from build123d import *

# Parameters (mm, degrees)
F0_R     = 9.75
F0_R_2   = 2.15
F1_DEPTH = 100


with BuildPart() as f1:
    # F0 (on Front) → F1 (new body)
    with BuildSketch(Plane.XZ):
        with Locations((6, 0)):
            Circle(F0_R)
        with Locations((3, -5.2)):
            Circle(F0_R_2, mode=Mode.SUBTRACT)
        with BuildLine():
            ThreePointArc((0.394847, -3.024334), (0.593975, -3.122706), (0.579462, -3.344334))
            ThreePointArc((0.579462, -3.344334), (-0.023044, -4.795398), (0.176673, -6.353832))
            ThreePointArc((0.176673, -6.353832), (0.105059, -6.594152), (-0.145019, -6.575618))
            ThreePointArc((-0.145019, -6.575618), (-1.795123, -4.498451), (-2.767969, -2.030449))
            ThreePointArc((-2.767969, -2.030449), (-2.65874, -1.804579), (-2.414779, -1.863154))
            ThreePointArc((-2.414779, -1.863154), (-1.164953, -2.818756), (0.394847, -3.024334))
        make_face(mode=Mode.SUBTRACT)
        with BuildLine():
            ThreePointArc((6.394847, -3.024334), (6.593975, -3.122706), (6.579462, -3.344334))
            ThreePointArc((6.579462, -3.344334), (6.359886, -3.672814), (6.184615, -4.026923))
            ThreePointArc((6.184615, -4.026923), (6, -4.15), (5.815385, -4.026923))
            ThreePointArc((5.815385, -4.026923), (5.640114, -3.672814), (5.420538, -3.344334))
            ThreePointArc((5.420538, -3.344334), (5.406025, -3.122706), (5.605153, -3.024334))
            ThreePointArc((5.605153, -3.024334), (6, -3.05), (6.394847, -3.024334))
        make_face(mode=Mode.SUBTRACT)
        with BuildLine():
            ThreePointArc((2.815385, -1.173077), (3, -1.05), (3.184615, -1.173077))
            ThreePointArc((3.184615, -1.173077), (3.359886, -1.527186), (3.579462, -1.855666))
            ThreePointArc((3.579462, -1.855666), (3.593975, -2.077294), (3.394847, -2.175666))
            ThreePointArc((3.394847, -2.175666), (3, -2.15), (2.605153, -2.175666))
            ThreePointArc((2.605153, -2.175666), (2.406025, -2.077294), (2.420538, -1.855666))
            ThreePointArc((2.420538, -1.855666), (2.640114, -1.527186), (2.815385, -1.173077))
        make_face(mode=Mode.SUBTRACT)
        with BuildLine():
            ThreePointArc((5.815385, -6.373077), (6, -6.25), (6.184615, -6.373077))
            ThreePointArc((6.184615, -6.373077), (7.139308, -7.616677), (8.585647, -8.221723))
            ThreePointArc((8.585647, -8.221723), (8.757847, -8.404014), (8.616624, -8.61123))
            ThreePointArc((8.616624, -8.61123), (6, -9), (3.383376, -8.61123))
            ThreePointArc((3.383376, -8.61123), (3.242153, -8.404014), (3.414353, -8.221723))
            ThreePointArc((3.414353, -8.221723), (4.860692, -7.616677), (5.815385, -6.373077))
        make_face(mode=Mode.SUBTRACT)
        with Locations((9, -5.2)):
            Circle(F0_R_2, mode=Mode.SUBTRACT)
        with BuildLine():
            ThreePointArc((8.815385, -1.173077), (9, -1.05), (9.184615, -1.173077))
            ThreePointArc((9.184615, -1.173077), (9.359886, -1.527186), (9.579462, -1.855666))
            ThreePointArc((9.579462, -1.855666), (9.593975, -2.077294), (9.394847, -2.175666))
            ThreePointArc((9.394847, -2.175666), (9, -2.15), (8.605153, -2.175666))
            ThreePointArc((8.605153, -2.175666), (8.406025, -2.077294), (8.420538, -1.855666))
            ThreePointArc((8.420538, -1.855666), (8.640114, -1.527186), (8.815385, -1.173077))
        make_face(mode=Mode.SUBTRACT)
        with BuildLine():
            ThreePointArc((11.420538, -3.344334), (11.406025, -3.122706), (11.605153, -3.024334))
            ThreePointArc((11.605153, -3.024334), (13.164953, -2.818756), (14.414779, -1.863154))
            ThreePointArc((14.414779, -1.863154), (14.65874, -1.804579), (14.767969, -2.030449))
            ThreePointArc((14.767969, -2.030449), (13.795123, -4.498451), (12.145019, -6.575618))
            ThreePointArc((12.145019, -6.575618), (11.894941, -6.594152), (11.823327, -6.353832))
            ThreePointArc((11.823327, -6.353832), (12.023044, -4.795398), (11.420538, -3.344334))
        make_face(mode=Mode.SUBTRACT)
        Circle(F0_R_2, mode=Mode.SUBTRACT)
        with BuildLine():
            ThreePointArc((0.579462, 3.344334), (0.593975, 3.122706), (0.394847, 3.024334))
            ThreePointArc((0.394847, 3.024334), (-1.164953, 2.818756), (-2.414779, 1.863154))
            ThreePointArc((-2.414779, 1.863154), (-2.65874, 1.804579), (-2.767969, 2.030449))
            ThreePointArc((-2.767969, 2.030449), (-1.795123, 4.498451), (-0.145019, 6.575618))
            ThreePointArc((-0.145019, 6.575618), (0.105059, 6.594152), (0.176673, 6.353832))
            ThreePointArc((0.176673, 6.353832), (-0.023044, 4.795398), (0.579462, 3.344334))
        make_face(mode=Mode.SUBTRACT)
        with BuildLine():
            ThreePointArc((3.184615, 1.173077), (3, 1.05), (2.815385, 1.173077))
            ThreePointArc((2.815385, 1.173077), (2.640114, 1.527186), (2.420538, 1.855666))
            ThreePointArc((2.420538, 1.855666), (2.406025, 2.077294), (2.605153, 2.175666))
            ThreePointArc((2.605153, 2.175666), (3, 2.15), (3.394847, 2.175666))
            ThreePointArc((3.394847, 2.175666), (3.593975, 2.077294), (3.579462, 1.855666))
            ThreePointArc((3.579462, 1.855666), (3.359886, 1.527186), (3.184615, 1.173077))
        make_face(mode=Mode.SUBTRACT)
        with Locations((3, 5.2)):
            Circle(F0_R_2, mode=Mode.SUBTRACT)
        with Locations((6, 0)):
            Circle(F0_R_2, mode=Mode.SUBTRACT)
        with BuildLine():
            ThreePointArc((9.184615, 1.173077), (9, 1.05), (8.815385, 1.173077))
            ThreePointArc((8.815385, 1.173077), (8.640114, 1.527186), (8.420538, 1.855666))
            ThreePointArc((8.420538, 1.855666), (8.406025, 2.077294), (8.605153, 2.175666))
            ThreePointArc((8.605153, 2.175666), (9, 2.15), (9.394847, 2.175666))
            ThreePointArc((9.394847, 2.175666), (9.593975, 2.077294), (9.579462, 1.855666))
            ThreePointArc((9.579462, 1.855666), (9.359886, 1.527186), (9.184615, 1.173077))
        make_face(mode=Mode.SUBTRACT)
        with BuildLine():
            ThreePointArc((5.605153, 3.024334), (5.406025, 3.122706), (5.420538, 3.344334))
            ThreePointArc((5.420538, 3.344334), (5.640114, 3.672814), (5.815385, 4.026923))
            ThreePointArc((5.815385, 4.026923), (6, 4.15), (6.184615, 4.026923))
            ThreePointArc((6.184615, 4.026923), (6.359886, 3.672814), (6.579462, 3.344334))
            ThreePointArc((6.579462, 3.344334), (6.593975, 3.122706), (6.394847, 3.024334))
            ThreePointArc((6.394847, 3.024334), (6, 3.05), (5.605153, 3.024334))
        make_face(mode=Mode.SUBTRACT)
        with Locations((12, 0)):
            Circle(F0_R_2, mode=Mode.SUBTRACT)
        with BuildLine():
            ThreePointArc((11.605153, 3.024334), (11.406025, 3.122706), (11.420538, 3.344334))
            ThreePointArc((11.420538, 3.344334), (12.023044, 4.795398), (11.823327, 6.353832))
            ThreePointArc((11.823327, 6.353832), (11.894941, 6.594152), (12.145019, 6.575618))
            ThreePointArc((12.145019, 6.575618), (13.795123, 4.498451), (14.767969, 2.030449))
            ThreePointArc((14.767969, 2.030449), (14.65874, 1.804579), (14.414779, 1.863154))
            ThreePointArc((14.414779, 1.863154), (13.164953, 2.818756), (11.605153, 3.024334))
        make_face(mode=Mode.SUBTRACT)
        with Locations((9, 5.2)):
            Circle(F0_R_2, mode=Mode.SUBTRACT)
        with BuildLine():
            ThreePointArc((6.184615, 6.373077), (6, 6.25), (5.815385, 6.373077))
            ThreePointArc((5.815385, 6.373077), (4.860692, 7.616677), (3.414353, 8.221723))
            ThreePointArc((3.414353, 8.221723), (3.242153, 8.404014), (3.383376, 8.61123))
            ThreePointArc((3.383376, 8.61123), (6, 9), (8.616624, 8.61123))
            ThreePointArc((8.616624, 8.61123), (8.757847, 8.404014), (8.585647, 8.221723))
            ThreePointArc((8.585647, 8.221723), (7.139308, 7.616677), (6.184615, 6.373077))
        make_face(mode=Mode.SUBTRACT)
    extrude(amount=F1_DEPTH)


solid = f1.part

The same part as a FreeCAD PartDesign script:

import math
import FreeCAD as App
import Part
import Sketcher
from FreeCAD import Vector
Q = App.Units.Quantity

doc = App.newDocument("Part")
body = doc.addObject("PartDesign::Body", "Body")

# Sketch on XZ plane
sketch1 = doc.addObject("Sketcher::SketchObject", "Sketch")
body.addObject(sketch1)
sketch1.AttachmentSupport = (doc.XZ_Plane, [""])
sketch1.MapMode = "FlatFace"
sketch1.addGeometry([
    Part.Circle(Vector(6, 0, 0), Vector(0, 0, 1), 9.75),  # 0
    Part.Circle(Vector(3, -5.2, 0), Vector(0, 0, 1), 2.15),  # 1
    Part.ArcOfCircle(Part.Circle(Vector(0, -0.000001, 0), Vector(0, 0, 1), 3.05), math.radians(-142.347558), math.radians(-82.561719)),  # 2
    Part.ArcOfCircle(Part.Circle(Vector(0.420738, -3.222651, 0), Vector(0, 0, 1), 0.2), math.radians(-37.474985), math.radians(97.438161)),  # 3
    Part.ArcOfCircle(Part.Circle(Vector(3.000005, -5.200001, 0), Vector(0, 0, 1), 3.050005), math.radians(142.525051), math.radians(202.228703)),  # 4
    Part.ArcOfCircle(Part.Circle(Vector(-0.008463, -6.429493, 0), Vector(0, 0, 1), 0.2), math.radians(-133.061075), math.radians(22.228619)),  # 5
    Part.ArcOfCircle(Part.Circle(Vector(6.000004, 0.000001, 0), Vector(0, 0, 1), 9.000004), math.radians(-166.961514), math.radians(-133.061265)),  # 6
    Part.ArcOfCircle(Part.Circle(Vector(-2.573125, -1.985328, 0), Vector(0, 0, 1), 0.2), math.radians(37.652356), math.radians(193.038532)),  # 7
    Part.Circle(Vector(0, 0, 0), Vector(0, 0, 1), 2.15),  # 8
    Part.ArcOfCircle(Part.Circle(Vector(-0.00004, 0.000025, 0), Vector(0, 0, 1), 3.050047), math.radians(-37.474897), math.radians(-22.62)),  # 9
    Part.ArcOfCircle(Part.Circle(Vector(3, -1.249999, 0), Vector(0, 0, 1), 0.199999), math.radians(22.619722), math.radians(157.380278)),  # 10
    Part.ArcOfCircle(Part.Circle(Vector(6.00004, 0.000025, 0), Vector(0, 0, 1), 3.050047), math.radians(-157.38), math.radians(-142.525103)),  # 11
    Part.ArcOfCircle(Part.Circle(Vector(3.420738, -1.977349, 0), Vector(0, 0, 1), 0.2), math.radians(-97.438161), math.radians(37.474985)),  # 12
    Part.ArcOfCircle(Part.Circle(Vector(3, -5.200006, 0), Vector(0, 0, 1), 3.050006), math.radians(82.561739), math.radians(97.438261)),  # 13
    Part.ArcOfCircle(Part.Circle(Vector(2.579262, -1.977349, 0), Vector(0, 0, 1), 0.2), math.radians(142.525015), math.radians(277.438161)),  # 14
    Part.ArcOfCircle(Part.Circle(Vector(3.000002, -5.200002, 0), Vector(0, 0, 1), 3.049998), math.radians(-82.192061), math.radians(-22.61985)),  # 15
    Part.ArcOfCircle(Part.Circle(Vector(6, -6.449999, 0), Vector(0, 0, 1), 0.199999), math.radians(22.619722), math.radians(157.380278)),  # 16
    Part.ArcOfCircle(Part.Circle(Vector(8.999998, -5.200002, 0), Vector(0, 0, 1), 3.049998), math.radians(-157.38015), math.radians(-97.807939)),  # 17
    Part.ArcOfCircle(Part.Circle(Vector(8.558476, -8.419869, 0), Vector(0, 0, 1), 0.2), math.radians(-73.097789), math.radians(82.19197)),  # 18
    Part.ArcOfCircle(Part.Circle(Vector(6, 0.000004, 0), Vector(0, 0, 1), 9.000004), math.radians(-106.902016), math.radians(-73.097984)),  # 19
    Part.ArcOfCircle(Part.Circle(Vector(3.441524, -8.419869, 0), Vector(0, 0, 1), 0.2), math.radians(97.80803), math.radians(253.097789)),  # 20
    Part.Circle(Vector(9, -5.2, 0), Vector(0, 0, 1), 2.15),  # 21
    Part.ArcOfCircle(Part.Circle(Vector(6, 0.000006, 0), Vector(0, 0, 1), 3.050006), math.radians(-97.438261), math.radians(-82.561739)),  # 22
    Part.ArcOfCircle(Part.Circle(Vector(6.420738, -3.222651, 0), Vector(0, 0, 1), 0.2), math.radians(-37.474985), math.radians(97.438161)),  # 23
    Part.ArcOfCircle(Part.Circle(Vector(9.00004, -5.200025, 0), Vector(0, 0, 1), 3.050047), math.radians(142.525103), math.radians(157.38)),  # 24
    Part.ArcOfCircle(Part.Circle(Vector(6, -3.950001, 0), Vector(0, 0, 1), 0.199999), math.radians(-157.380278), math.radians(-22.619722)),  # 25
    Part.ArcOfCircle(Part.Circle(Vector(2.99996, -5.200025, 0), Vector(0, 0, 1), 3.050047), math.radians(22.62), math.radians(37.474897)),  # 26
    Part.ArcOfCircle(Part.Circle(Vector(5.579262, -3.222651, 0), Vector(0, 0, 1), 0.2), math.radians(82.561839), math.radians(217.474985)),  # 27
    Part.Circle(Vector(6, 0, 0), Vector(0, 0, 1), 2.15),  # 28
    Part.ArcOfCircle(Part.Circle(Vector(5.99996, 0.000025, 0), Vector(0, 0, 1), 3.050047), math.radians(-37.474897), math.radians(-22.62)),  # 29
    Part.ArcOfCircle(Part.Circle(Vector(9, -1.249999, 0), Vector(0, 0, 1), 0.199999), math.radians(22.619722), math.radians(157.380278)),  # 30
    Part.ArcOfCircle(Part.Circle(Vector(12.00004, 0.000025, 0), Vector(0, 0, 1), 3.050047), math.radians(-157.38), math.radians(-142.525103)),  # 31
    Part.ArcOfCircle(Part.Circle(Vector(9.420738, -1.977349, 0), Vector(0, 0, 1), 0.2), math.radians(-97.438161), math.radians(37.474985)),  # 32
    Part.ArcOfCircle(Part.Circle(Vector(9, -5.200006, 0), Vector(0, 0, 1), 3.050006), math.radians(82.561739), math.radians(97.438261)),  # 33
    Part.ArcOfCircle(Part.Circle(Vector(8.579262, -1.977349, 0), Vector(0, 0, 1), 0.2), math.radians(142.525015), math.radians(277.438161)),  # 34
    Part.ArcOfCircle(Part.Circle(Vector(8.999995, -5.200001, 0), Vector(0, 0, 1), 3.050005), math.radians(-22.228703), math.radians(37.474949)),  # 35
    Part.ArcOfCircle(Part.Circle(Vector(11.579262, -3.222651, 0), Vector(0, 0, 1), 0.2), math.radians(82.561839), math.radians(217.474985)),  # 36
    Part.ArcOfCircle(Part.Circle(Vector(12, -0.000001, 0), Vector(0, 0, 1), 3.05), math.radians(-97.438281), math.radians(-37.652442)),  # 37
    Part.ArcOfCircle(Part.Circle(Vector(14.573125, -1.985328, 0), Vector(0, 0, 1), 0.2), math.radians(-13.038532), math.radians(142.347644)),  # 38
    Part.ArcOfCircle(Part.Circle(Vector(5.999996, 0.000001, 0), Vector(0, 0, 1), 9.000004), math.radians(-46.938735), math.radians(-13.038486)),  # 39
    Part.ArcOfCircle(Part.Circle(Vector(12.008463, -6.429493, 0), Vector(0, 0, 1), 0.2), math.radians(157.771381), math.radians(313.061075)),  # 40
    Part.Circle(Vector(12, 0, 0), Vector(0, 0, 1), 2.15),  # 41
    Part.ArcOfCircle(Part.Circle(Vector(3.000005, 5.200001, 0), Vector(0, 0, 1), 3.050005), math.radians(157.771297), math.radians(217.474949)),  # 42
    Part.ArcOfCircle(Part.Circle(Vector(0.420738, 3.222651, 0), Vector(0, 0, 1), 0.2), math.radians(-97.438161), math.radians(37.474985)),  # 43
    Part.ArcOfCircle(Part.Circle(Vector(0, 0.000001, 0), Vector(0, 0, 1), 3.05), math.radians(82.561719), math.radians(142.347558)),  # 44
    Part.ArcOfCircle(Part.Circle(Vector(-2.573125, 1.985328, 0), Vector(0, 0, 1), 0.2), math.radians(166.961468), math.radians(322.347644)),  # 45
    Part.ArcOfCircle(Part.Circle(Vector(6.000004, -0.000001, 0), Vector(0, 0, 1), 9.000004), math.radians(133.061265), math.radians(166.961514)),  # 46
    Part.ArcOfCircle(Part.Circle(Vector(-0.008463, 6.429493, 0), Vector(0, 0, 1), 0.2), math.radians(-22.228619), math.radians(133.061075)),  # 47
    Part.ArcOfCircle(Part.Circle(Vector(6.00004, -0.000025, 0), Vector(0, 0, 1), 3.050047), math.radians(142.525103), math.radians(157.38)),  # 48
    Part.ArcOfCircle(Part.Circle(Vector(3, 1.249999, 0), Vector(0, 0, 1), 0.199999), math.radians(-157.380278), math.radians(-22.619722)),  # 49
    Part.ArcOfCircle(Part.Circle(Vector(-0.00004, -0.000025, 0), Vector(0, 0, 1), 3.050047), math.radians(22.62), math.radians(37.474897)),  # 50
    Part.ArcOfCircle(Part.Circle(Vector(2.579262, 1.977349, 0), Vector(0, 0, 1), 0.2), math.radians(82.561839), math.radians(217.474985)),  # 51
    Part.ArcOfCircle(Part.Circle(Vector(3, 5.200006, 0), Vector(0, 0, 1), 3.050006), math.radians(-97.438261), math.radians(-82.561739)),  # 52
    Part.ArcOfCircle(Part.Circle(Vector(3.420738, 1.977349, 0), Vector(0, 0, 1), 0.2), math.radians(-37.474985), math.radians(97.438161)),  # 53
    Part.Circle(Vector(3, 5.2, 0), Vector(0, 0, 1), 2.15),  # 54
    Part.ArcOfCircle(Part.Circle(Vector(12.00004, -0.000025, 0), Vector(0, 0, 1), 3.050047), math.radians(142.525103), math.radians(157.38)),  # 55
    Part.ArcOfCircle(Part.Circle(Vector(9, 1.249999, 0), Vector(0, 0, 1), 0.199999), math.radians(-157.380278), math.radians(-22.619722)),  # 56
    Part.ArcOfCircle(Part.Circle(Vector(5.99996, -0.000025, 0), Vector(0, 0, 1), 3.050047), math.radians(22.62), math.radians(37.474897)),  # 57
    Part.ArcOfCircle(Part.Circle(Vector(8.579262, 1.977349, 0), Vector(0, 0, 1), 0.2), math.radians(82.561839), math.radians(217.474985)),  # 58
    Part.ArcOfCircle(Part.Circle(Vector(9, 5.200006, 0), Vector(0, 0, 1), 3.050006), math.radians(-97.438261), math.radians(-82.561739)),  # 59
    Part.ArcOfCircle(Part.Circle(Vector(9.420738, 1.977349, 0), Vector(0, 0, 1), 0.2), math.radians(-37.474985), math.radians(97.438161)),  # 60
    Part.ArcOfCircle(Part.Circle(Vector(6, -0.000006, 0), Vector(0, 0, 1), 3.050006), math.radians(82.561739), math.radians(97.438261)),  # 61
    Part.ArcOfCircle(Part.Circle(Vector(5.579262, 3.222651, 0), Vector(0, 0, 1), 0.2), math.radians(142.525015), math.radians(277.438161)),  # 62
    Part.ArcOfCircle(Part.Circle(Vector(2.99996, 5.200025, 0), Vector(0, 0, 1), 3.050047), math.radians(-37.474897), math.radians(-22.62)),  # 63
    Part.ArcOfCircle(Part.Circle(Vector(6, 3.950001, 0), Vector(0, 0, 1), 0.199999), math.radians(22.619722), math.radians(157.380278)),  # 64
    Part.ArcOfCircle(Part.Circle(Vector(9.00004, 5.200025, 0), Vector(0, 0, 1), 3.050047), math.radians(-157.38), math.radians(-142.525103)),  # 65
    Part.ArcOfCircle(Part.Circle(Vector(6.420738, 3.222651, 0), Vector(0, 0, 1), 0.2), math.radians(-97.438161), math.radians(37.474985)),  # 66
    Part.ArcOfCircle(Part.Circle(Vector(12, 0.000001, 0), Vector(0, 0, 1), 3.05), math.radians(37.652442), math.radians(97.438281)),  # 67
    Part.ArcOfCircle(Part.Circle(Vector(11.579262, 3.222651, 0), Vector(0, 0, 1), 0.2), math.radians(142.525015), math.radians(277.438161)),  # 68
    Part.ArcOfCircle(Part.Circle(Vector(8.999995, 5.200001, 0), Vector(0, 0, 1), 3.050005), math.radians(-37.474949), math.radians(22.228703)),  # 69
    Part.ArcOfCircle(Part.Circle(Vector(12.008463, 6.429493, 0), Vector(0, 0, 1), 0.2), math.radians(46.938925), math.radians(202.228619)),  # 70
    Part.ArcOfCircle(Part.Circle(Vector(5.999996, -0.000001, 0), Vector(0, 0, 1), 9.000004), math.radians(13.038486), math.radians(46.938735)),  # 71
    Part.ArcOfCircle(Part.Circle(Vector(14.573125, 1.985328, 0), Vector(0, 0, 1), 0.2), math.radians(-142.347644), math.radians(13.038532)),  # 72
    Part.Circle(Vector(9, 5.2, 0), Vector(0, 0, 1), 2.15),  # 73
    Part.ArcOfCircle(Part.Circle(Vector(8.999998, 5.200002, 0), Vector(0, 0, 1), 3.049998), math.radians(97.807939), math.radians(157.38015)),  # 74
    Part.ArcOfCircle(Part.Circle(Vector(6, 6.449999, 0), Vector(0, 0, 1), 0.199999), math.radians(-157.380278), math.radians(-22.619722)),  # 75
    Part.ArcOfCircle(Part.Circle(Vector(3.000002, 5.200002, 0), Vector(0, 0, 1), 3.049998), math.radians(22.61985), math.radians(82.192061)),  # 76
    Part.ArcOfCircle(Part.Circle(Vector(3.441524, 8.419869, 0), Vector(0, 0, 1), 0.2), math.radians(106.902211), math.radians(262.19197)),  # 77
    Part.ArcOfCircle(Part.Circle(Vector(6, -0.000004, 0), Vector(0, 0, 1), 9.000004), math.radians(73.097984), math.radians(106.902016)),  # 78
    Part.ArcOfCircle(Part.Circle(Vector(8.558476, 8.419869, 0), Vector(0, 0, 1), 0.2), math.radians(-82.19197), math.radians(73.097789)),  # 79
], False)
sketch1.addConstraint([
    Sketcher.Constraint("Coincident", 2, 2, 3, 2),
    Sketcher.Constraint("Tangent", 3, 1, 4, 1),
    Sketcher.Constraint("Tangent", 4, 2, 5, 2),
    Sketcher.Constraint("Coincident", 5, 1, 6, 2),
    Sketcher.Constraint("Tangent", 6, 1, 7, 2),
    Sketcher.Constraint("Tangent", 7, 1, 2, 1),
    Sketcher.Constraint("Coincident", 9, 2, 10, 2),
    Sketcher.Constraint("Coincident", 10, 1, 11, 1),
    Sketcher.Constraint("Tangent", 11, 2, 12, 2),
    Sketcher.Constraint("Tangent", 12, 1, 13, 1),
    Sketcher.Constraint("Tangent", 13, 2, 14, 2),
    Sketcher.Constraint("Tangent", 14, 1, 9, 1),
    Sketcher.Constraint("Coincident", 15, 2, 16, 2),
    Sketcher.Constraint("Coincident", 16, 1, 17, 1),
    Sketcher.Constraint("Tangent", 17, 2, 18, 2),
    Sketcher.Constraint("Coincident", 18, 1, 19, 2),
    Sketcher.Constraint("Coincident", 19, 1, 20, 2),
    Sketcher.Constraint("Tangent", 20, 1, 15, 1),
    Sketcher.Constraint("Tangent", 22, 2, 23, 2),
    Sketcher.Constraint("Tangent", 23, 1, 24, 1),
    Sketcher.Constraint("Coincident", 24, 2, 25, 2),
    Sketcher.Constraint("Coincident", 25, 1, 26, 1),
    Sketcher.Constraint("Tangent", 26, 2, 27, 2),
    Sketcher.Constraint("Tangent", 27, 1, 22, 1),
    Sketcher.Constraint("Coincident", 29, 2, 30, 2),
    Sketcher.Constraint("Coincident", 30, 1, 31, 1),
    Sketcher.Constraint("Tangent", 31, 2, 32, 2),
    Sketcher.Constraint("Tangent", 32, 1, 33, 1),
    Sketcher.Constraint("Tangent", 33, 2, 34, 2),
    Sketcher.Constraint("Tangent", 34, 1, 29, 1),
    Sketcher.Constraint("Tangent", 35, 2, 36, 2),
    Sketcher.Constraint("Coincident", 36, 1, 37, 1),
    Sketcher.Constraint("Tangent", 37, 2, 38, 2),
    Sketcher.Constraint("Tangent", 38, 1, 39, 2),
    Sketcher.Constraint("Coincident", 39, 1, 40, 2),
    Sketcher.Constraint("Tangent", 40, 1, 35, 1),
    Sketcher.Constraint("Tangent", 42, 2, 43, 2),
    Sketcher.Constraint("Coincident", 43, 1, 44, 1),
    Sketcher.Constraint("Tangent", 44, 2, 45, 2),
    Sketcher.Constraint("Tangent", 45, 1, 46, 2),
    Sketcher.Constraint("Coincident", 46, 1, 47, 2),
    Sketcher.Constraint("Tangent", 47, 1, 42, 1),
    Sketcher.Constraint("Coincident", 48, 2, 49, 2),
    Sketcher.Constraint("Coincident", 49, 1, 50, 1),
    Sketcher.Constraint("Tangent", 50, 2, 51, 2),
    Sketcher.Constraint("Tangent", 51, 1, 52, 1),
    Sketcher.Constraint("Tangent", 52, 2, 53, 2),
    Sketcher.Constraint("Tangent", 53, 1, 48, 1),
    Sketcher.Constraint("Coincident", 55, 2, 56, 2),
    Sketcher.Constraint("Coincident", 56, 1, 57, 1),
    Sketcher.Constraint("Tangent", 57, 2, 58, 2),
    Sketcher.Constraint("Tangent", 58, 1, 59, 1),
    Sketcher.Constraint("Tangent", 59, 2, 60, 2),
    Sketcher.Constraint("Tangent", 60, 1, 55, 1),
    Sketcher.Constraint("Tangent", 61, 2, 62, 2),
    Sketcher.Constraint("Tangent", 62, 1, 63, 1),
    Sketcher.Constraint("Coincident", 63, 2, 64, 2),
    Sketcher.Constraint("Coincident", 64, 1, 65, 1),
    Sketcher.Constraint("Tangent", 65, 2, 66, 2),
    Sketcher.Constraint("Tangent", 66, 1, 61, 1),
    Sketcher.Constraint("Coincident", 67, 2, 68, 2),
    Sketcher.Constraint("Tangent", 68, 1, 69, 1),
    Sketcher.Constraint("Tangent", 69, 2, 70, 2),
    Sketcher.Constraint("Coincident", 70, 1, 71, 2),
    Sketcher.Constraint("Tangent", 71, 1, 72, 2),
    Sketcher.Constraint("Tangent", 72, 1, 67, 1),
    Sketcher.Constraint("Coincident", 74, 2, 75, 2),
    Sketcher.Constraint("Coincident", 75, 1, 76, 1),
    Sketcher.Constraint("Tangent", 76, 2, 77, 2),
    Sketcher.Constraint("Coincident", 77, 1, 78, 2),
    Sketcher.Constraint("Coincident", 78, 1, 79, 2),
    Sketcher.Constraint("Tangent", 79, 1, 74, 1),
    Sketcher.Constraint("Coincident", 2, 3, -1, 1),
    Sketcher.Constraint("Coincident", 8, 3, -1, 1),
    Sketcher.Constraint("Coincident", 44, 3, -1, 1),
    Sketcher.Constraint("Coincident", 4, 3, 1, 3),
    Sketcher.Constraint("Coincident", 6, 3, 0, 3),
    Sketcher.Constraint("Coincident", 13, 3, 1, 3),
    Sketcher.Constraint("Coincident", 15, 3, 1, 3),
    Sketcher.Constraint("Coincident", 19, 3, 0, 3),
    Sketcher.Constraint("Coincident", 21, 3, 17, 3),
    Sketcher.Constraint("Coincident", 22, 3, 0, 3),
    Sketcher.Constraint("Coincident", 28, 3, 0, 3),
    Sketcher.Constraint("Coincident", 33, 3, 17, 3),
    Sketcher.Constraint("Coincident", 35, 3, 17, 3),
    Sketcher.Constraint("Coincident", 39, 3, 0, 3),
    Sketcher.Constraint("Coincident", 41, 3, 37, 3),
    Sketcher.Constraint("Coincident", 46, 3, 0, 3),
    Sketcher.Constraint("Coincident", 52, 3, 42, 3),
    Sketcher.Constraint("Coincident", 54, 3, 42, 3),
    Sketcher.Constraint("Coincident", 61, 3, 0, 3),
    Sketcher.Constraint("Coincident", 67, 3, 37, 3),
    Sketcher.Constraint("Coincident", 69, 3, 59, 3),
    Sketcher.Constraint("Coincident", 71, 3, 0, 3),
    Sketcher.Constraint("Coincident", 73, 3, 59, 3),
    Sketcher.Constraint("Coincident", 74, 3, 59, 3),
    Sketcher.Constraint("Coincident", 76, 3, 42, 3),
    Sketcher.Constraint("Coincident", 78, 3, 0, 3),
    Sketcher.Constraint("Equal", 3, 5),
    Sketcher.Constraint("Equal", 5, 7),
    Sketcher.Constraint("Equal", 1, 8),
    Sketcher.Constraint("Equal", 7, 10),
    Sketcher.Constraint("Equal", 9, 11),
    Sketcher.Constraint("Equal", 10, 12),
    Sketcher.Constraint("Equal", 4, 13),
    Sketcher.Constraint("Equal", 12, 14),
    Sketcher.Constraint("Equal", 2, 15),
    Sketcher.Constraint("Equal", 14, 16),
    Sketcher.Constraint("Equal", 15, 17),
    Sketcher.Constraint("Equal", 16, 18),
    Sketcher.Constraint("Equal", 6, 19),
    Sketcher.Constraint("Equal", 18, 20),
    Sketcher.Constraint("Equal", 8, 21),
    Sketcher.Constraint("Equal", 13, 22),
    Sketcher.Constraint("Equal", 20, 23),
    Sketcher.Constraint("Equal", 11, 24),
    Sketcher.Constraint("Equal", 23, 25),
    Sketcher.Constraint("Equal", 24, 26),
    Sketcher.Constraint("Equal", 25, 27),
    Sketcher.Constraint("Equal", 21, 28),
    Sketcher.Constraint("Equal", 26, 29),
    Sketcher.Constraint("Equal", 27, 30),
    Sketcher.Constraint("Equal", 29, 31),
    Sketcher.Constraint("Equal", 30, 32),
    Sketcher.Constraint("Equal", 22, 33),
    Sketcher.Constraint("Equal", 32, 34),
    Sketcher.Constraint("Equal", 33, 35),
    Sketcher.Constraint("Equal", 34, 36),
    Sketcher.Constraint("Equal", 17, 37),
    Sketcher.Constraint("Equal", 36, 38),
    Sketcher.Constraint("Equal", 19, 39),
    Sketcher.Constraint("Equal", 38, 40),
    Sketcher.Constraint("Equal", 28, 41),
    Sketcher.Constraint("Equal", 35, 42),
    Sketcher.Constraint("Equal", 40, 43),
    Sketcher.Constraint("Equal", 37, 44),
    Sketcher.Constraint("Equal", 43, 45),
    Sketcher.Constraint("Equal", 39, 46),
    Sketcher.Constraint("Equal", 45, 47),
    Sketcher.Constraint("Equal", 31, 48),
    Sketcher.Constraint("Equal", 47, 49),
    Sketcher.Constraint("Equal", 48, 50),
    Sketcher.Constraint("Equal", 49, 51),
    Sketcher.Constraint("Equal", 42, 52),
    Sketcher.Constraint("Equal", 51, 53),
    Sketcher.Constraint("Equal", 41, 54),
    Sketcher.Constraint("Equal", 50, 55),
    Sketcher.Constraint("Equal", 53, 56),
    Sketcher.Constraint("Equal", 55, 57),
    Sketcher.Constraint("Equal", 56, 58),
    Sketcher.Constraint("Equal", 52, 59),
    Sketcher.Constraint("Equal", 58, 60),
    Sketcher.Constraint("Equal", 59, 61),
    Sketcher.Constraint("Equal", 60, 62),
    Sketcher.Constraint("Equal", 57, 63),
    Sketcher.Constraint("Equal", 62, 64),
    Sketcher.Constraint("Equal", 63, 65),
    Sketcher.Constraint("Equal", 64, 66),
    Sketcher.Constraint("Equal", 44, 67),
    Sketcher.Constraint("Equal", 66, 68),
    Sketcher.Constraint("Equal", 61, 69),
    Sketcher.Constraint("Equal", 68, 70),
    Sketcher.Constraint("Equal", 46, 71),
    Sketcher.Constraint("Equal", 70, 72),
    Sketcher.Constraint("Equal", 54, 73),
    Sketcher.Constraint("Equal", 67, 74),
    Sketcher.Constraint("Equal", 72, 75),
    Sketcher.Constraint("Equal", 74, 76),
    Sketcher.Constraint("Equal", 75, 77),
    Sketcher.Constraint("Equal", 71, 78),
    Sketcher.Constraint("Equal", 77, 79),
    Sketcher.Constraint("Symmetric", 1, 3, 42, 3, -1),
    Sketcher.Constraint("Symmetric", 11, 3, 48, 3, -1),
    Sketcher.Constraint("Symmetric", 9, 3, 50, 3, -1),
    Sketcher.Constraint("Symmetric", 31, 3, 55, 3, -1),
    Sketcher.Constraint("Symmetric", 29, 3, 57, 3, -1),
    Sketcher.Constraint("Symmetric", 17, 3, 59, 3, -1),
    Sketcher.Constraint("Symmetric", 27, 3, 62, 3, -1),
    Sketcher.Constraint("Symmetric", 25, 3, 64, 3, -1),
    Sketcher.Constraint("Symmetric", 36, 1, 67, 2, -1),
    Sketcher.Constraint("Horizontal", 9, 3, 11, 3),
    Sketcher.Constraint("Horizontal", 12, 3, 14, 3),
    Sketcher.Constraint("Horizontal", 15, 3, 17, 3),
    Sketcher.Constraint("Horizontal", 18, 3, 20, 3),
    Sketcher.Constraint("Horizontal", 3, 3, 23, 3),
    Sketcher.Constraint("Horizontal", 24, 3, 26, 3),
    Sketcher.Constraint("Horizontal", 23, 3, 27, 3),
    Sketcher.Constraint("Horizontal", 11, 3, 29, 3),
    Sketcher.Constraint("Horizontal", 10, 3, 30, 3),
    Sketcher.Constraint("Horizontal", 29, 3, 31, 3),
    Sketcher.Constraint("Horizontal", 14, 3, 32, 3),
    Sketcher.Constraint("Horizontal", 27, 3, 36, 3),
    Sketcher.Constraint("Horizontal", 63, 3, 65, 3),
    Sketcher.Constraint("Horizontal", 9, 2, 10, 1),
    Sketcher.Constraint("Horizontal", 15, 2, 16, 1),
    Sketcher.Constraint("Horizontal", 18, 1, 19, 1),
    Sketcher.Constraint("Horizontal", 2, 2, 22, 2),
    Sketcher.Constraint("Horizontal", 3, 1, 23, 1),
    Sketcher.Constraint("Horizontal", 24, 2, 25, 1),
    Sketcher.Constraint("Horizontal", 10, 1, 29, 2),
    Sketcher.Constraint("Horizontal", 29, 2, 30, 1),
    Sketcher.Constraint("Horizontal", 27, 1, 36, 1),
    Sketcher.Constraint("Horizontal", 5, 1, 39, 1),
    Sketcher.Constraint("Horizontal", 48, 2, 49, 1),
    Sketcher.Constraint("Horizontal", 49, 1, 55, 2),
    Sketcher.Constraint("Horizontal", 55, 2, 56, 1),
    Sketcher.Constraint("Horizontal", 43, 1, 61, 2),
    Sketcher.Constraint("Horizontal", 63, 2, 64, 1),
    Sketcher.Constraint("Horizontal", 46, 1, 70, 1),
    Sketcher.Constraint("Horizontal", 74, 2, 75, 1),
    Sketcher.Constraint("Horizontal", 77, 1, 78, 1),
    Sketcher.Constraint("Vertical", 16, 1, 24, 2),
    Sketcher.Constraint("Vertical", 5, 1, 46, 1),
    Sketcher.Constraint("Vertical", 10, 1, 48, 2),
    Sketcher.Constraint("Vertical", 25, 1, 63, 2),
    Sketcher.Constraint("Vertical", 64, 1, 74, 2),
    Sketcher.Constraint("Vertical", 19, 1, 77, 1),
    Sketcher.Constraint("Diameter", 0, Q("19.5 mm")),
    Sketcher.Constraint("Diameter", 1, Q("4.3 mm")),
    Sketcher.Constraint("Radius", 3, Q("0.2 mm")),
    Sketcher.Constraint("Radius", 2, Q("3.05 mm")),
    Sketcher.Constraint("DistanceX", -1, 1, 0, 3, Q("6 mm")),
    Sketcher.Constraint("DistanceX", -1, 1, 1, 3, Q("3 mm")),
    Sketcher.Constraint("DistanceY", 1, 3, -1, 1, Q("5.2 mm")),
    Sketcher.Constraint("DistanceY", 10, 3, -1, 1, Q("1.249999 mm")),
    Sketcher.Constraint("DistanceY", 25, 3, -1, 1, Q("3.950001 mm")),
    Sketcher.Constraint("Radius", 6, Q("9.000004 mm")),
    Sketcher.Constraint("Radius", 9, Q("3.050047 mm")),
    Sketcher.Constraint("DistanceX", -1, 1, 11, 3, Q("6.00004 mm")),
    Sketcher.Constraint("DistanceX", 5, 1, -1, 1, Q("0.145019 mm")),
    Sketcher.Constraint("DistanceY", 18, 1, -1, 1, Q("8.61123 mm")),
    Sketcher.Constraint("DistanceX", -1, 1, 9, 2, Q("2.815385 mm")),
    Sketcher.Constraint("DistanceX", -1, 1, 15, 2, Q("5.815385 mm")),
])
pad1 = doc.addObject("PartDesign::Pad", "Pad")
body.addObject(pad1)
pad1.Profile = sketch1
pad1.Length = 100

doc.recompute()
